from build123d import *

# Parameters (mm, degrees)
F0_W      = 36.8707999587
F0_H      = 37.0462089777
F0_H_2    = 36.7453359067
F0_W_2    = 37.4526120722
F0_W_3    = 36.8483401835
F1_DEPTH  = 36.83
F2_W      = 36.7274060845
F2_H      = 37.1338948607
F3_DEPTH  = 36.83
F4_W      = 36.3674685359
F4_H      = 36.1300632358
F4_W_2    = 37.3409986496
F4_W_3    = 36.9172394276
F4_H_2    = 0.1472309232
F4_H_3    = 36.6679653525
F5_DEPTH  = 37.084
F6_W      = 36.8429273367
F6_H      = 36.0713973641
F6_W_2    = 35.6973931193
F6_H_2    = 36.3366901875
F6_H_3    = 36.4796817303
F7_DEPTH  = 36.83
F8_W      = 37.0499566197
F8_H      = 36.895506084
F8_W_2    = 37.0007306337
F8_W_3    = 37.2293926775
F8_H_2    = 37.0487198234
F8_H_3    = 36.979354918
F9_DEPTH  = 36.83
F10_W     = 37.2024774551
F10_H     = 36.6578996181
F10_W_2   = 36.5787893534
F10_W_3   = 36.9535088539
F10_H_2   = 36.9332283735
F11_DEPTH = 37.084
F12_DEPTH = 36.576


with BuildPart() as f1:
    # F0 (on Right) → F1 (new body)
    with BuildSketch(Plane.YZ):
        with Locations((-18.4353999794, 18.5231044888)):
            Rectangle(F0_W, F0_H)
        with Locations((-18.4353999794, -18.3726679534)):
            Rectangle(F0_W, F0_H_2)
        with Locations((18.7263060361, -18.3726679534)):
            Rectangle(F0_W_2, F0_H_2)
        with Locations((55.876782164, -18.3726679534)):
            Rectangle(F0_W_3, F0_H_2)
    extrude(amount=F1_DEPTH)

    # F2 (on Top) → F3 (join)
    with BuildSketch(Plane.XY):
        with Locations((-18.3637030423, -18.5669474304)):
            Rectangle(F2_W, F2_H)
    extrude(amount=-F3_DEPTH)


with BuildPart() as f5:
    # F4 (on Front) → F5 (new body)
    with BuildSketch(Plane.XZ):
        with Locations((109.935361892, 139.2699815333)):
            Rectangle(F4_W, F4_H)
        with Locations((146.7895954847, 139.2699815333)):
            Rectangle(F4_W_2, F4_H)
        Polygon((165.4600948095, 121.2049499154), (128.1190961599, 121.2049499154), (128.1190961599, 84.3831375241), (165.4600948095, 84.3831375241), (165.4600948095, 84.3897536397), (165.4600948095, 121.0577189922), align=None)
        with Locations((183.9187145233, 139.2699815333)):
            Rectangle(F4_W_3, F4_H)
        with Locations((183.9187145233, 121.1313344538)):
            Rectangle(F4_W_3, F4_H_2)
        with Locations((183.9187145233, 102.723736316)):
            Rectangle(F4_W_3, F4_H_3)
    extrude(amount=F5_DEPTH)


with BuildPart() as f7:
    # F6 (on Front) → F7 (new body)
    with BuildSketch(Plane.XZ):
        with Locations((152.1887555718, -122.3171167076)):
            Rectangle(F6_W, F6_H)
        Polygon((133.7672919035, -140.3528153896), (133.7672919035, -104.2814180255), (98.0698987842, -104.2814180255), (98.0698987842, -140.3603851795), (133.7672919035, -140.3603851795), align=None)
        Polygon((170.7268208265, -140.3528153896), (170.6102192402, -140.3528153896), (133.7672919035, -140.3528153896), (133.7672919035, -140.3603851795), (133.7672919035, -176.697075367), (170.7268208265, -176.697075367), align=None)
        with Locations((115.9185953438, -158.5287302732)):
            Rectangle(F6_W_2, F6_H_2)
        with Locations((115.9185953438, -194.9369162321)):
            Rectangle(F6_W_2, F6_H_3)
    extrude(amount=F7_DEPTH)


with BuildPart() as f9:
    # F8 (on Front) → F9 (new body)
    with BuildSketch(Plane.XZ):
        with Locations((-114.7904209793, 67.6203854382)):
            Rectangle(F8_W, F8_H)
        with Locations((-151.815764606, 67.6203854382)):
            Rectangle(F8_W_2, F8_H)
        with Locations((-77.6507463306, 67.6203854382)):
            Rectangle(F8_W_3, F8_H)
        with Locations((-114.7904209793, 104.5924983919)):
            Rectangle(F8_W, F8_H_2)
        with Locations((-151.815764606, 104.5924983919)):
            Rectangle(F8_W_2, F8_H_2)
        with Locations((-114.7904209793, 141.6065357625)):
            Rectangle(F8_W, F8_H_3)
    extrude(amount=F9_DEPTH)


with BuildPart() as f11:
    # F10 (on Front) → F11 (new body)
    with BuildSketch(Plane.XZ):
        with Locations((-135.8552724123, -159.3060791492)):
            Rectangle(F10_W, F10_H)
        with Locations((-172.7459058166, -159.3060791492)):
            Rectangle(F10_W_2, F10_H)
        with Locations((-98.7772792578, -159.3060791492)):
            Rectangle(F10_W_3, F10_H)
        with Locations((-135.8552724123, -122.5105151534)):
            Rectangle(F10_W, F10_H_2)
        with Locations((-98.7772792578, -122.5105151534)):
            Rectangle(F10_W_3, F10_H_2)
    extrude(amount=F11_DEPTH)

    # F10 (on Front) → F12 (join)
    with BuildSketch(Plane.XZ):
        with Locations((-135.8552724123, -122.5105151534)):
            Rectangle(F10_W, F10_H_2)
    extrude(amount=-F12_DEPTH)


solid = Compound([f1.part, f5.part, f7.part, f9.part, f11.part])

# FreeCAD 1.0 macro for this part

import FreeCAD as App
import Part
import Sketcher
Q = App.Units.Quantity


def add_polygon(sketch, points):
    """Adds a closed chain of lines whose ends are joined by coincident constraints."""
    first, n = sketch.GeometryCount, len(points)
    for a, b in zip(points, points[1:] + points[:1]):
        sketch.addGeometry(Part.LineSegment(App.Vector(*a, 0), App.Vector(*b, 0)), False)
    for i in range(n):
        sketch.addConstraint(Sketcher.Constraint("Coincident", first + i, 2, first + (i + 1) % n, 1))

doc = App.newDocument("Part")
params = doc.addObject("Spreadsheet::Sheet", "Params")
for row, (alias, value) in enumerate([
    ("pad1_length", "1.45 in"),
    ("pad2_length", "1.45 in"),
    ("pad3_length", "1.46 in"),
    ("pad4_length", "1.45 in"),
    ("pad5_length", "1.45 in"),
    ("pad6_length", "1.46 in"),
    ("pad7_length", "1.44 in"),
], start=1):
    params.set(f"A{row}", alias)
    params.set(f"B{row}", "=" + value)
    params.setAlias(f"B{row}", alias)

body = doc.addObject("PartDesign::Body", "Body")

# Sketch on YZ plane
sketch1 = body.newObject("Sketcher::SketchObject", "Sketch")
sketch1.AttachmentSupport = (doc.getObject("YZ_Plane"), [""])
sketch1.MapMode = "FlatFace"
add_polygon(sketch1, [(-37, 37), (-37, -37), (74, -37), (74, 0), (0, 0), (0, 37)])  # lines 0-5
sketch1.addConstraint([
    Sketcher.Constraint("Vertical", 0),
    Sketcher.Constraint("Horizontal", 1),
    Sketcher.Constraint("Vertical", 2),
    Sketcher.Constraint("Horizontal", 3),
    Sketcher.Constraint("Vertical", 4),
    Sketcher.Constraint("Horizontal", 5),
    Sketcher.Constraint("Coincident", 3, 2, -1, 1),
    Sketcher.Constraint("DistanceX", 5, 2, 5, 1, Q("36.8708 mm")),
    Sketcher.Constraint("DistanceY", 4, 1, 4, 2, Q("37.046209 mm")),
    Sketcher.Constraint("DistanceX", 1, 1, 1, 2, Q("111.171752 mm")),
    Sketcher.Constraint("DistanceY", 0, 2, 0, 1, Q("73.791545 mm")),
])
pad1 = body.newObject("PartDesign::Pad", "Pad")
pad1.Profile = sketch1
pad1.setExpression("Length", "Params.pad1_length")

# Sketch on XY plane
sketch2 = body.newObject("Sketcher::SketchObject", "Sketch001")
sketch2.AttachmentSupport = (doc.getObject("XY_Plane"), [""])
sketch2.MapMode = "FlatFace"
add_polygon(sketch2, [(-37, 0), (-37, -37), (0, -37), (0, 0)])  # lines 0-3
sketch2.addConstraint([
    Sketcher.Constraint("Vertical", 0),
    Sketcher.Constraint("Horizontal", 1),
    Sketcher.Constraint("Vertical", 2),
    Sketcher.Constraint("Horizontal", 3),
    Sketcher.Constraint("Coincident", 2, 2, -1, 1),
    Sketcher.Constraint("DistanceX", 1, 1, 1, 2, Q("36.727406 mm")),
    Sketcher.Constraint("DistanceY", 0, 2, 0, 1, Q("37.133895 mm")),
])
pad2 = body.newObject("PartDesign::Pad", "Pad001")
pad2.Profile = sketch2
pad2.setExpression("Length", "Params.pad2_length")
pad2.Reversed = True
body2 = doc.addObject("PartDesign::Body", "Body001")

# Sketch on XZ plane
sketch3 = body2.newObject("Sketcher::SketchObject", "Sketch002")
sketch3.AttachmentSupport = (doc.getObject("XZ_Plane001"), [""])
sketch3.MapMode = "FlatFace"
add_polygon(sketch3, [(91.752, 157.335), (91.752, 121.205), (128.119, 121.205), (128.119, 84.383), (165.46, 84.383), (165.46, 84.39), (202.377, 84.39), (202.377, 157.335)])  # lines 0-7
sketch3.addConstraint([
    Sketcher.Constraint("Vertical", 0),
    Sketcher.Constraint("Horizontal", 1),
    Sketcher.Constraint("Vertical", 2),
    Sketcher.Constraint("Horizontal", 3),
    Sketcher.Constraint("Vertical", 4),
    Sketcher.Constraint("Horizontal", 5),
    Sketcher.Constraint("Vertical", 6),
    Sketcher.Constraint("Horizontal", 7),
    Sketcher.Constraint("DistanceX", 3, 1, 3, 2, Q("37.340999 mm")),
    Sketcher.Constraint("DistanceX", 1, 1, 1, 2, Q("36.367469 mm")),
    Sketcher.Constraint("DistanceX", 5, 1, 5, 2, Q("36.917239 mm")),
    Sketcher.Constraint("DistanceY", 6, 1, 6, 2, Q("72.94526 mm")),
    Sketcher.Constraint("DistanceY", 0, 2, 0, 1, Q("36.130063 mm")),
    Sketcher.Constraint("DistanceY", 2, 2, 2, 1, Q("36.821812 mm")),
    Sketcher.Constraint("DistanceY", -1, 1, 0, 2, Q("121.20495 mm")),
    Sketcher.Constraint("DistanceX", -1, 1, 0, 2, Q("91.751628 mm")),
])
pad3 = body2.newObject("PartDesign::Pad", "Pad002")
pad3.Profile = sketch3
pad3.setExpression("Length", "Params.pad3_length")
body3 = doc.addObject("PartDesign::Body", "Body002")

# Sketch on XZ plane
sketch4 = body3.newObject("Sketcher::SketchObject", "Sketch003")
sketch4.AttachmentSupport = (doc.getObject("XZ_Plane002"), [""])
sketch4.MapMode = "FlatFace"
add_polygon(sketch4, [(170.61, -140.35), (170.61, -104.28), (98.07, -104.28), (98.07, -213.18), (133.77, -213.18), (133.77, -176.7), (170.73, -176.7), (170.73, -140.35)])  # lines 0-7
sketch4.addConstraint([
    Sketcher.Constraint("Vertical", 0),
    Sketcher.Constraint("Horizontal", 1),
    Sketcher.Constraint("Vertical", 2),
    Sketcher.Constraint("Horizontal", 3),
    Sketcher.Constraint("Vertical", 4),
    Sketcher.Constraint("Horizontal", 5),
    Sketcher.Constraint("Vertical", 6),
    Sketcher.Constraint("Horizontal", 7),
    Sketcher.Constraint("DistanceX", 7, 2, 7, 1, Q("0.116602 mm")),
    Sketcher.Constraint("DistanceX", 1, 2, 1, 1, Q("72.54032 mm")),
    Sketcher.Constraint("DistanceX", 5, 1, 5, 2, Q("36.959529 mm")),
    Sketcher.Constraint("DistanceY", 2, 2, 2, 1, Q("108.895339 mm")),
    Sketcher.Constraint("DistanceY", 4, 1, 4, 2, Q("36.479682 mm")),
    Sketcher.Constraint("DistanceY", 6, 1, 6, 2, Q("36.34426 mm")),
    Sketcher.Constraint("DistanceX", -1, 1, 1, 2, Q("98.069899 mm")),
    Sketcher.Constraint("DistanceY", 0, 2, -1, 1, Q("104.281418 mm")),
])
pad4 = body3.newObject("PartDesign::Pad", "Pad003")
pad4.Profile = sketch4
pad4.setExpression("Length", "Params.pad4_length")
body4 = doc.addObject("PartDesign::Body", "Body003")

# Sketch on XZ plane
sketch5 = body4.newObject("Sketcher::SketchObject", "Sketch004")
sketch5.AttachmentSupport = (doc.getObject("XZ_Plane003"), [""])
sketch5.MapMode = "FlatFace"
add_polygon(sketch5, [(-170, 49), (-59, 49), (-59, 86), (-96, 86), (-96, 160), (-133, 160), (-133, 123), (-170, 123)])  # lines 0-7
sketch5.addConstraint([
    Sketcher.Constraint("Horizontal", 0),
    Sketcher.Constraint("Vertical", 1),
    Sketcher.Constraint("Horizontal", 2),
    Sketcher.Constraint("Vertical", 3),
    Sketcher.Constraint("Horizontal", 4),
    Sketcher.Constraint("Vertical", 5),
    Sketcher.Constraint("Horizontal", 6),
    Sketcher.Constraint("Vertical", 7),
    Sketcher.Constraint("DistanceX", 0, 1, 0, 2, Q("111.28008 mm")),
    Sketcher.Constraint("DistanceX", 6, 2, 6, 1, Q("37.000731 mm")),
    Sketcher.Constraint("DistanceX", 4, 2, -1, 1, Q("133.315399 mm")),
    Sketcher.Constraint("DistanceX", 2, 2, 2, 1, Q("37.229393 mm")),
    Sketcher.Constraint("DistanceY", 1, 1, 1, 2, Q("36.895506 mm")),
    Sketcher.Constraint("DistanceY", 3, 1, 3, 2, Q("74.028075 mm")),
    Sketcher.Constraint("DistanceY", 5, 2, 5, 1, Q("36.979355 mm")),
    Sketcher.Constraint("DistanceY", -1, 1, 1, 2, Q("86.068138 mm")),
])
pad5 = body4.newObject("PartDesign::Pad", "Pad004")
pad5.Profile = sketch5
pad5.setExpression("Length", "Params.pad5_length")
body5 = doc.addObject("PartDesign::Body", "Body004")

# Sketch on XZ plane
sketch6 = body5.newObject("Sketcher::SketchObject", "Sketch005")
sketch6.AttachmentSupport = (doc.getObject("XZ_Plane004"), [""])
sketch6.MapMode = "FlatFace"
add_polygon(sketch6, [(-191, -141), (-191, -178), (-80, -178), (-80, -104), (-154, -104), (-154, -141)])  # lines 0-5
sketch6.addConstraint([
    Sketcher.Constraint("Vertical", 0),
    Sketcher.Constraint("Horizontal", 1),
    Sketcher.Constraint("Vertical", 2),
    Sketcher.Constraint("Horizontal", 3),
    Sketcher.Constraint("Vertical", 4),
    Sketcher.Constraint("Horizontal", 5),
    Sketcher.Constraint("DistanceY", 0, 2, 0, 1, Q("36.6579 mm")),
    Sketcher.Constraint("DistanceX", 5, 2, 5, 1, Q("36.578789 mm")),
    Sketcher.Constraint("DistanceY", 4, 2, 4, 1, Q("36.933228 mm")),
    Sketcher.Constraint("DistanceX", 0, 2, -1, 1, Q("191.0353 mm")),
    Sketcher.Constraint("DistanceY", 2, 2, -1, 1, Q("104.043901 mm")),
    Sketcher.Constraint("DistanceX", 1, 1, 1, 2, Q("110.734776 mm")),
])
pad6 = body5.newObject("PartDesign::Pad", "Pad005")
pad6.Profile = sketch6
pad6.setExpression("Length", "Params.pad6_length")

# Sketch on XZ plane
sketch7 = body5.newObject("Sketcher::SketchObject", "Sketch006")
sketch7.AttachmentSupport = (doc.getObject("XZ_Plane004"), [""])
sketch7.MapMode = "FlatFace"
add_polygon(sketch7, [(-154, -104), (-154, -141), (-117, -141), (-117, -104)])  # lines 0-3
sketch7.addConstraint([
    Sketcher.Constraint("Vertical", 0),
    Sketcher.Constraint("Horizontal", 1),
    Sketcher.Constraint("Vertical", 2),
    Sketcher.Constraint("Horizontal", 3),
    Sketcher.Constraint("DistanceY", 0, 2, 0, 1, Q("36.933228 mm")),
    Sketcher.Constraint("DistanceY", 2, 2, -1, 1, Q("104.043901 mm")),
    Sketcher.Constraint("DistanceX", 1, 1, 1, 2, Q("37.202477 mm")),
    Sketcher.Constraint("DistanceX", 0, 2, -1, 1, Q("154.456511 mm")),
])
pad7 = body5.newObject("PartDesign::Pad", "Pad006")
pad7.Profile = sketch7
pad7.setExpression("Length", "Params.pad7_length")
pad7.Reversed = True

doc.recompute()
